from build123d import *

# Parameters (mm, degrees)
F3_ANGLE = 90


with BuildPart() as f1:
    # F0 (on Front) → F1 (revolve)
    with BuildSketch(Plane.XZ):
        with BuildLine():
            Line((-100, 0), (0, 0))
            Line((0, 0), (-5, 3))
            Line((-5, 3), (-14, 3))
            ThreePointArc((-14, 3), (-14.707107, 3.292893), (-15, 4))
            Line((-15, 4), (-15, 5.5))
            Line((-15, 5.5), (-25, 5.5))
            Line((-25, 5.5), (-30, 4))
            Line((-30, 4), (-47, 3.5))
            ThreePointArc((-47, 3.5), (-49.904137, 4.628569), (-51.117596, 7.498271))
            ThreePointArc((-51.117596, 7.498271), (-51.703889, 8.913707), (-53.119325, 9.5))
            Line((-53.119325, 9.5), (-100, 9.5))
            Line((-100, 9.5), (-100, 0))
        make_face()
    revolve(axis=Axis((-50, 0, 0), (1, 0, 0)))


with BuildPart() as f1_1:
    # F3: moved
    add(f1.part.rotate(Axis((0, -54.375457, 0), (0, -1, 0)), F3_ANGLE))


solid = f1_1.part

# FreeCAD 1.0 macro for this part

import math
import FreeCAD as App
import Part
import Sketcher
from FreeCAD import Vector

doc = App.newDocument("Part")
body = doc.addObject("PartDesign::Body", "Body")

sketch1 = doc.addObject("Sketcher::SketchObject", "Sketch")
body.addObject(sketch1)
sketch1.AttachmentSupport = (doc.XZ_Plane, [""])
sketch1.MapMode = "FlatFace"
sketch1.addGeometry(Part.LineSegment(Vector(-100, 0, 0), Vector(0, 0, 0)), False)
sketch1.addGeometry(Part.LineSegment(Vector(0, 0, 0), Vector(-5, 3, 0)), False)
sketch1.addGeometry(Part.LineSegment(Vector(-5, 3, 0), Vector(-14, 3, 0)), False)
sketch1.addGeometry(Part.ArcOfCircle(Part.Circle(Vector(-14, 4, 0), Vector(0, 0, 1), 1), math.radians(180), math.radians(270)), False)
sketch1.addGeometry(Part.LineSegment(Vector(-15, 4, 0), Vector(-15, 5.5, 0)), False)
sketch1.addGeometry(Part.LineSegment(Vector(-15, 5.5, 0), Vector(-25, 5.5, 0)), False)
sketch1.addGeometry(Part.LineSegment(Vector(-25, 5.5, 0), Vector(-30, 4, 0)), False)
sketch1.addGeometry(Part.LineSegment(Vector(-30, 4, 0), Vector(-47, 3.5, 0)), False)
sketch1.addGeometry(Part.ArcOfCircle(Part.Circle(Vector(-47.1, 7.5, 0), Vector(0, 0, 1), 4), math.radians(180), math.radians(272)), False)
sketch1.addGeometry(Part.ArcOfCircle(Part.Circle(Vector(-53.1, 7.5, 0), Vector(0, 0, 1), 2), math.radians(0), math.radians(90)), False)
sketch1.addGeometry(Part.LineSegment(Vector(-53.1, 9.5, 0), Vector(-100, 9.5, 0)), False)
sketch1.addGeometry(Part.LineSegment(Vector(-100, 9.5, 0), Vector(-100, 0, 0)), False)
sketch1.addConstraint(Sketcher.Constraint("Coincident", 0, 2, 1, 1))
sketch1.addConstraint(Sketcher.Constraint("Coincident", 1, 2, 2, 1))
sketch1.addConstraint(Sketcher.Constraint("Tangent", 2, 2, 3, 2))
sketch1.addConstraint(Sketcher.Constraint("Tangent", 3, 1, 4, 1))
sketch1.addConstraint(Sketcher.Constraint("Coincident", 4, 2, 5, 1))
sketch1.addConstraint(Sketcher.Constraint("Coincident", 5, 2, 6, 1))
sketch1.addConstraint(Sketcher.Constraint("Coincident", 6, 2, 7, 1))
sketch1.addConstraint(Sketcher.Constraint("Tangent", 7, 2, 8, 2))
sketch1.addConstraint(Sketcher.Constraint("Tangent", 8, 1, 9, 1))
sketch1.addConstraint(Sketcher.Constraint("Tangent", 9, 2, 10, 1))
sketch1.addConstraint(Sketcher.Constraint("Coincident", 10, 2, 11, 1))
sketch1.addConstraint(Sketcher.Constraint("Coincident", 11, 2, 0, 1))
sketch1.addConstraint(Sketcher.Constraint("Horizontal", 0))
sketch1.addConstraint(Sketcher.Constraint("Horizontal", 2))
sketch1.addConstraint(Sketcher.Constraint("Vertical", 4))
sketch1.addConstraint(Sketcher.Constraint("Horizontal", 5))
sketch1.addConstraint(Sketcher.Constraint("Horizontal", 10))
sketch1.addConstraint(Sketcher.Constraint("Vertical", 11))
sketch1.addConstraint(Sketcher.Constraint("Coincident", 0, 2, -1, 1))
sketch1.addConstraint(Sketcher.Constraint("Horizontal", 8, 3, 9, 3))
sketch1.addConstraint(Sketcher.Constraint("Horizontal", 3, 1, 6, 2))
sketch1.addConstraint(Sketcher.Constraint("Radius", 3, 0.999999))
sketch1.addConstraint(Sketcher.Constraint("Radius", 8, 4.0))
sketch1.addConstraint(Sketcher.Constraint("DistanceX", 0, 1, 0, 2, 100.0))
sketch1.addConstraint(Sketcher.Constraint("DistanceX", 2, 2, 2, 1, 9.0))
sketch1.addConstraint(Sketcher.Constraint("DistanceX", 5, 2, 5, 1, 10.0))
sketch1.addConstraint(Sketcher.Constraint("DistanceY", 4, 1, 4, 2, 1.5))
sketch1.addConstraint(Sketcher.Constraint("DistanceY", 11, 2, 11, 1, 9.5))
sketch1.addConstraint(Sketcher.Constraint("DistanceX", 3, 3, -1, 1, 14.000001))
sketch1.addConstraint(Sketcher.Constraint("DistanceY", -1, 1, 3, 3, 3.999999))
sketch1.addConstraint(Sketcher.Constraint("DistanceX", 6, 2, -1, 1, 30.0))
sketch1.addConstraint(Sketcher.Constraint("DistanceX", 7, 2, -1, 1, 47.0))
sketch1.addConstraint(Sketcher.Constraint("DistanceY", 7, 2, 5, 2, 2.0))
revolution = doc.addObject("PartDesign::Revolution", "Revolution")
body.addObject(revolution)
revolution.Profile = sketch1
revolution.ReferenceAxis = (sketch1, ["H_Axis"])
revolution.Angle = 360
body2 = doc.addObject("PartDesign::Body", "Body001")
doc.recompute()

body.Placement = App.Placement(Vector(0, 0, 0), App.Rotation(Vector(0, -1, 0), 90))
boolean = doc.addObject("PartDesign::Boolean", "Boolean")
body2.addObject(boolean)
boolean.Type = "Fuse"
boolean.addObjects([body])

doc.recompute()
